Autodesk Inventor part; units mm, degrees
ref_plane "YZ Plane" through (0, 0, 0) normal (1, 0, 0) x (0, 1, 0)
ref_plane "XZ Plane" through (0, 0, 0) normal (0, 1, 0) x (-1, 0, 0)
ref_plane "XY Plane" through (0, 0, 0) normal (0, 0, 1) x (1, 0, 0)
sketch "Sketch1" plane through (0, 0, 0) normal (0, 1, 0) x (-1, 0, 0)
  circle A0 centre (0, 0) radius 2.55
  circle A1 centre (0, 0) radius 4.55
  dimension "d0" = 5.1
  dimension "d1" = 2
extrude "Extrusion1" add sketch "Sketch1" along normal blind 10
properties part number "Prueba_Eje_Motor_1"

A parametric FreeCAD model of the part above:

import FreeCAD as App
import Part
import Sketcher

doc = App.newDocument("Part")
body = doc.addObject("PartDesign::Body", "Body")

# Sketch on XZ plane
sketch1 = body.newObject("Sketcher::SketchObject", "Sketch")
sketch1.AttachmentSupport = (doc.getObject("XZ_Plane"), [""])
sketch1.MapMode = "FlatFace"
sketch1.addGeometry(Part.Circle(App.Vector(0, 0, 0), App.Vector(0, 0, 1), 4.55), False)
sketch1.addGeometry(Part.Circle(App.Vector(0, 0, 0), App.Vector(0, 0, 1), 2.55), False)
sketch1.addConstraint(Sketcher.Constraint("Coincident", 0, 3, -1, 1))
sketch1.addConstraint(Sketcher.Constraint("Coincident", 1, 3, -1, 1))
sketch1.addConstraint(Sketcher.Constraint("Diameter", 1, 5.1))
sketch1.addConstraint(Sketcher.Constraint("Diameter", 0, 9.1))
pad1 = body.newObject("PartDesign::Pad", "Pad")
pad1.Profile = sketch1
pad1.Length = 10
pad1.Reversed = True

doc.recompute()
